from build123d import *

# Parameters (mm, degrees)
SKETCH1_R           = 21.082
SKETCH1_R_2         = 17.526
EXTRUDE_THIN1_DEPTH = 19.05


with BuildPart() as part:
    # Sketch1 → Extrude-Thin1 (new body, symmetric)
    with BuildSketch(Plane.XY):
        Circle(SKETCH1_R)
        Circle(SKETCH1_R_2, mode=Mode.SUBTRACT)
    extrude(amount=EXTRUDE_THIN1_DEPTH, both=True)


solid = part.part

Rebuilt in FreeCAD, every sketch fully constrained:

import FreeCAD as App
import Part
import Sketcher
Q = App.Units.Quantity

doc = App.newDocument("Part")
body = doc.addObject("PartDesign::Body", "Body")

# Sketch on XY plane
sketch1 = body.newObject("Sketcher::SketchObject", "Sketch")
sketch1.AttachmentSupport = (doc.getObject("XY_Plane"), [""])
sketch1.MapMode = "FlatFace"
sketch1.addGeometry([
    Part.Circle(App.Vector(0, 0, 0), App.Vector(0, 0, 1), 21),
    Part.Circle(App.Vector(0, 0, 0), App.Vector(0, 0, 1), 18),
], False)
sketch1.addConstraint([
    Sketcher.Constraint("Coincident", 0, 3, -1, 1),
    Sketcher.Constraint("Coincident", 1, 3, -1, 1),
    Sketcher.Constraint("Diameter", 0, Q("1.66 in")),
    Sketcher.Constraint("Diameter", 1, Q("1.38 in")),
])
pad1 = body.newObject("PartDesign::Pad", "Pad")
pad1.Profile = sketch1
pad1.Length = Q("1.5 in")
pad1.Midplane = True

doc.recompute()
